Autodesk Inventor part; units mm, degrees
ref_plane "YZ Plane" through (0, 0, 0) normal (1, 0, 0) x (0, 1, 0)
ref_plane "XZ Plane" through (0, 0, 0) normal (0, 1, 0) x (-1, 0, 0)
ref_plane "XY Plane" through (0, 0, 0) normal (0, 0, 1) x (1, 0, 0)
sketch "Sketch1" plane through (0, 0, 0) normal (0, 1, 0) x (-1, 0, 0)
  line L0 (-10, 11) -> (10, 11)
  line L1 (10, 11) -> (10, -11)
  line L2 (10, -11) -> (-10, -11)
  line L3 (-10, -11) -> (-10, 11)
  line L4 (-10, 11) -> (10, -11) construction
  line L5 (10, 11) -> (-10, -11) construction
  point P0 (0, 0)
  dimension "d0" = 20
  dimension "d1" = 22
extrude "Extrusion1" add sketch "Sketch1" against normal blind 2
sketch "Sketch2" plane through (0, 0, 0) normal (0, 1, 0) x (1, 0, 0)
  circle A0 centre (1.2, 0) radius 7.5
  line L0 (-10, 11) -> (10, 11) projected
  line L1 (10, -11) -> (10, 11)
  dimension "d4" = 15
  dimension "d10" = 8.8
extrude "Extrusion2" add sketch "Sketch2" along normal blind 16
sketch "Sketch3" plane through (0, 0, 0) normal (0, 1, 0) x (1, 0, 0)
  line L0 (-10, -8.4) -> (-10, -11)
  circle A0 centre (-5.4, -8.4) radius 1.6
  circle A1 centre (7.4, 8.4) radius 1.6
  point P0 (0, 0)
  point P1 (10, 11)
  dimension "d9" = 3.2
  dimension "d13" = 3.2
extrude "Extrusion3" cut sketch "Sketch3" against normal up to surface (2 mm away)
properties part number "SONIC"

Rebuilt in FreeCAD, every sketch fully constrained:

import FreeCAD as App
import Part
import Sketcher
from FreeCAD import Vector
Q = App.Units.Quantity

doc = App.newDocument("Part")
params = doc.addObject("Spreadsheet::Sheet", "Params")
for row, (alias, value) in enumerate([
    ("sketch1_width", "20 mm"),
    ("sketch1_height", "22 mm"),
    ("pad1_length", "2 mm"),
    ("sketch2_diameter", "15 mm"),
    ("pad2_length", "16 mm"),
    ("sketch3_diameter", "3.2 mm"),
    ("pocket1_length", "2 mm"),
], start=1):
    params.set(f"A{row}", alias)
    params.set(f"B{row}", "=" + value)
    params.setAlias(f"B{row}", alias)

body = doc.addObject("PartDesign::Body", "Body")

sketch1 = doc.addObject("Sketcher::SketchObject", "Sketch")
body.addObject(sketch1)
sketch1.AttachmentSupport = (doc.XZ_Plane, [""])
sketch1.MapMode = "FlatFace"
sketch1.addGeometry(Part.LineSegment(Vector(-10, 11, 0), Vector(10, 11, 0)), False)
sketch1.addGeometry(Part.LineSegment(Vector(10, 11, 0), Vector(10, -11, 0)), False)
sketch1.addGeometry(Part.LineSegment(Vector(10, -11, 0), Vector(-10, -11, 0)), False)
sketch1.addGeometry(Part.LineSegment(Vector(-10, -11, 0), Vector(-10, 11, 0)), False)
sketch1.addConstraint(Sketcher.Constraint("Coincident", 0, 2, 1, 1))
sketch1.addConstraint(Sketcher.Constraint("Coincident", 1, 2, 2, 1))
sketch1.addConstraint(Sketcher.Constraint("Coincident", 2, 2, 3, 1))
sketch1.addConstraint(Sketcher.Constraint("Coincident", 3, 2, 0, 1))
sketch1.addConstraint(Sketcher.Constraint("Horizontal", 0))
sketch1.addConstraint(Sketcher.Constraint("Vertical", 1))
sketch1.addConstraint(Sketcher.Constraint("Horizontal", 2))
sketch1.addConstraint(Sketcher.Constraint("Vertical", 3))
sketch1.addConstraint(Sketcher.Constraint("Symmetric", 0, 2, 2, 2, -1, 1))
sketch1.addConstraint(Sketcher.Constraint("DistanceX", 0, 1, 0, 2, Q("20 mm")))
sketch1.addConstraint(Sketcher.Constraint("DistanceY", 1, 2, 1, 1, Q("22 mm")))
sketch1.setExpression("Constraints[9]", "Params.sketch1_width")
sketch1.setExpression("Constraints[10]", "Params.sketch1_height")
pad1 = doc.addObject("PartDesign::Pad", "Pad")
body.addObject(pad1)
pad1.Profile = sketch1
pad1.setExpression("Length", "Params.pad1_length")

sketch2 = doc.addObject("Sketcher::SketchObject", "Sketch001")
body.addObject(sketch2)
sketch2.AttachmentSupport = (doc.XZ_Plane, [""])
sketch2.MapMode = "FlatFace"
sketch2.addGeometry(Part.Circle(Vector(1.2, 0, 0), Vector(0, 0, 1), 7.5), False)
sketch2.addConstraint(Sketcher.Constraint("PointOnObject", 0, 3, -1))
sketch2.addConstraint(Sketcher.Constraint("Diameter", 0, Q("15 mm")))
sketch2.addConstraint(Sketcher.Constraint("DistanceX", -1, 1, 0, 3, Q("1.2 mm")))
sketch2.setExpression("Constraints[1]", "Params.sketch2_diameter")
pad2 = doc.addObject("PartDesign::Pad", "Pad001")
body.addObject(pad2)
pad2.Profile = sketch2
pad2.setExpression("Length", "Params.pad2_length")
pad2.Reversed = True

sketch3 = doc.addObject("Sketcher::SketchObject", "Sketch002")
body.addObject(sketch3)
sketch3.AttachmentSupport = (doc.XZ_Plane, [""])
sketch3.MapMode = "FlatFace"
sketch3.addGeometry(Part.Circle(Vector(-5.4, 8.4, 0), Vector(0, 0, 1), 1.6), False)
sketch3.addGeometry(Part.Circle(Vector(7.4, -8.4, 0), Vector(0, 0, 1), 1.6), False)
sketch3.addConstraint(Sketcher.Constraint("Equal", 0, 1))
sketch3.addConstraint(Sketcher.Constraint("Diameter", 0, Q("3.2 mm")))
sketch3.addConstraint(Sketcher.Constraint("DistanceX", 0, 3, -1, 1, Q("5.4 mm")))
sketch3.addConstraint(Sketcher.Constraint("DistanceY", -1, 1, 0, 3, Q("8.4 mm")))
sketch3.addConstraint(Sketcher.Constraint("DistanceX", -1, 1, 1, 3, Q("7.4 mm")))
sketch3.addConstraint(Sketcher.Constraint("DistanceY", 1, 3, -1, 1, Q("8.4 mm")))
sketch3.setExpression("Constraints[1]", "Params.sketch3_diameter")
pocket1 = doc.addObject("PartDesign::Pocket", "Pocket")
body.addObject(pocket1)
pocket1.Profile = sketch3
pocket1.setExpression("Length", "Params.pocket1_length")
pocket1.Reversed = True

doc.recompute()
